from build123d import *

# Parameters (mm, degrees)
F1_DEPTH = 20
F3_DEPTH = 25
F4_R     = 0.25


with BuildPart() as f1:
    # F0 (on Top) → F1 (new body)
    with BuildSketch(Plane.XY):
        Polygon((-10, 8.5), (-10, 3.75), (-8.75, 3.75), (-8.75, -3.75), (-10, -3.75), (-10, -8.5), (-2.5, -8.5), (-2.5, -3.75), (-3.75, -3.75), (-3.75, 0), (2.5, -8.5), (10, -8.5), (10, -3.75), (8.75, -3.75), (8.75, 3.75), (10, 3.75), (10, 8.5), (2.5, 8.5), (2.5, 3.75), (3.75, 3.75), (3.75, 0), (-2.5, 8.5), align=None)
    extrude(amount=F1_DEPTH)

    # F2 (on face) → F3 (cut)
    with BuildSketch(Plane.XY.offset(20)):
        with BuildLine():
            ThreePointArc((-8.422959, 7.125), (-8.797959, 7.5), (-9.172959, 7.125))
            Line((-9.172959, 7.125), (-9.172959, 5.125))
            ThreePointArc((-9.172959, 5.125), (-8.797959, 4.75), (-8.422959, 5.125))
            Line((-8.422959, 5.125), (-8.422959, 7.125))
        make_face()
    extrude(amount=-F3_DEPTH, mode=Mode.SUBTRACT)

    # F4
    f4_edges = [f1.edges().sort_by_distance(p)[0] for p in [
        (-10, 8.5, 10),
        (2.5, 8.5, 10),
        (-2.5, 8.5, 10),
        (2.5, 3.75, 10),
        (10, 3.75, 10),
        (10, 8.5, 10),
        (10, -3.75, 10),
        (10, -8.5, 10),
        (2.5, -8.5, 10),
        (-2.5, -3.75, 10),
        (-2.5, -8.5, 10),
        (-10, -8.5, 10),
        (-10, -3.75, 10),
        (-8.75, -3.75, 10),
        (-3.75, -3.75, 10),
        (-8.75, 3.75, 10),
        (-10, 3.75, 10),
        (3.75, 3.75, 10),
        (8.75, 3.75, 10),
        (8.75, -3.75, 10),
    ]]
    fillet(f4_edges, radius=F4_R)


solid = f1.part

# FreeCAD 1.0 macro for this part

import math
import FreeCAD as App
import Part
import Sketcher

V = App.Vector


def edges_at(feature, points):
    """Names of the edges that pass closest to the given points."""
    edges = feature.Shape.Edges
    near = lambda p: min(range(len(edges)), key=lambda i: edges[i].distToShape(Part.Vertex(*p))[0])
    return sorted({f"Edge{near(p) + 1}" for p in points})

doc = App.newDocument("Part")
body = doc.addObject("PartDesign::Body", "Body")

sketch1 = body.newObject("Sketcher::SketchObject", "Sketch")
sketch1.AttachmentSupport = (doc.getObject("XY_Plane"), [""])
sketch1.MapMode = "FlatFace"
sketch1.addGeometry(Part.LineSegment(V(-10, 8.5, 0), V(-10, 3.8, 0)), False)
sketch1.addGeometry(Part.LineSegment(V(-10, 3.8, 0), V(-8.8, 3.8, 0)), False)
sketch1.addGeometry(Part.LineSegment(V(-8.8, 3.8, 0), V(-8.8, -3.8, 0)), False)
sketch1.addGeometry(Part.LineSegment(V(-8.8, -3.8, 0), V(-10, -3.8, 0)), False)
sketch1.addGeometry(Part.LineSegment(V(-10, -3.8, 0), V(-10, -8.5, 0)), False)
sketch1.addGeometry(Part.LineSegment(V(-10, -8.5, 0), V(-2.5, -8.5, 0)), False)
sketch1.addGeometry(Part.LineSegment(V(-2.5, -8.5, 0), V(-2.5, -3.8, 0)), False)
sketch1.addGeometry(Part.LineSegment(V(-2.5, -3.8, 0), V(-3.8, -3.8, 0)), False)
sketch1.addGeometry(Part.LineSegment(V(-3.8, -3.8, 0), V(-3.8, 0, 0)), False)
sketch1.addGeometry(Part.LineSegment(V(-3.8, 0, 0), V(2.5, -8.5, 0)), False)
sketch1.addGeometry(Part.LineSegment(V(2.5, -8.5, 0), V(10, -8.5, 0)), False)
sketch1.addGeometry(Part.LineSegment(V(10, -8.5, 0), V(10, -3.8, 0)), False)
sketch1.addGeometry(Part.LineSegment(V(10, -3.8, 0), V(8.8, -3.8, 0)), False)
sketch1.addGeometry(Part.LineSegment(V(8.8, -3.8, 0), V(8.8, 3.8, 0)), False)
sketch1.addGeometry(Part.LineSegment(V(8.8, 3.8, 0), V(10, 3.8, 0)), False)
sketch1.addGeometry(Part.LineSegment(V(10, 3.8, 0), V(10, 8.5, 0)), False)
sketch1.addGeometry(Part.LineSegment(V(10, 8.5, 0), V(2.5, 8.5, 0)), False)
sketch1.addGeometry(Part.LineSegment(V(2.5, 8.5, 0), V(2.5, 3.8, 0)), False)
sketch1.addGeometry(Part.LineSegment(V(2.5, 3.8, 0), V(3.8, 3.8, 0)), False)
sketch1.addGeometry(Part.LineSegment(V(3.8, 3.8, 0), V(3.8, 0, 0)), False)
sketch1.addGeometry(Part.LineSegment(V(3.8, 0, 0), V(-2.5, 8.5, 0)), False)
sketch1.addGeometry(Part.LineSegment(V(-2.5, 8.5, 0), V(-10, 8.5, 0)), False)
sketch1.addConstraint(Sketcher.Constraint("Coincident", 0, 2, 1, 1))
sketch1.addConstraint(Sketcher.Constraint("Coincident", 1, 2, 2, 1))
sketch1.addConstraint(Sketcher.Constraint("Coincident", 2, 2, 3, 1))
sketch1.addConstraint(Sketcher.Constraint("Coincident", 3, 2, 4, 1))
sketch1.addConstraint(Sketcher.Constraint("Coincident", 4, 2, 5, 1))
sketch1.addConstraint(Sketcher.Constraint("Coincident", 5, 2, 6, 1))
sketch1.addConstraint(Sketcher.Constraint("Coincident", 6, 2, 7, 1))
sketch1.addConstraint(Sketcher.Constraint("Coincident", 7, 2, 8, 1))
sketch1.addConstraint(Sketcher.Constraint("Coincident", 8, 2, 9, 1))
sketch1.addConstraint(Sketcher.Constraint("Coincident", 9, 2, 10, 1))
sketch1.addConstraint(Sketcher.Constraint("Coincident", 10, 2, 11, 1))
sketch1.addConstraint(Sketcher.Constraint("Coincident", 11, 2, 12, 1))
sketch1.addConstraint(Sketcher.Constraint("Coincident", 12, 2, 13, 1))
sketch1.addConstraint(Sketcher.Constraint("Coincident", 13, 2, 14, 1))
sketch1.addConstraint(Sketcher.Constraint("Coincident", 14, 2, 15, 1))
sketch1.addConstraint(Sketcher.Constraint("Coincident", 15, 2, 16, 1))
sketch1.addConstraint(Sketcher.Constraint("Coincident", 16, 2, 17, 1))
sketch1.addConstraint(Sketcher.Constraint("Coincident", 17, 2, 18, 1))
sketch1.addConstraint(Sketcher.Constraint("Coincident", 18, 2, 19, 1))
sketch1.addConstraint(Sketcher.Constraint("Coincident", 19, 2, 20, 1))
sketch1.addConstraint(Sketcher.Constraint("Coincident", 20, 2, 21, 1))
sketch1.addConstraint(Sketcher.Constraint("Coincident", 21, 2, 0, 1))
sketch1.addConstraint(Sketcher.Constraint("Vertical", 0))
sketch1.addConstraint(Sketcher.Constraint("Horizontal", 1))
sketch1.addConstraint(Sketcher.Constraint("Vertical", 2))
sketch1.addConstraint(Sketcher.Constraint("Horizontal", 3))
sketch1.addConstraint(Sketcher.Constraint("Vertical", 4))
sketch1.addConstraint(Sketcher.Constraint("Horizontal", 5))
sketch1.addConstraint(Sketcher.Constraint("Vertical", 6))
sketch1.addConstraint(Sketcher.Constraint("Horizontal", 7))
sketch1.addConstraint(Sketcher.Constraint("Vertical", 8))
sketch1.addConstraint(Sketcher.Constraint("Horizontal", 10))
sketch1.addConstraint(Sketcher.Constraint("Vertical", 11))
sketch1.addConstraint(Sketcher.Constraint("Horizontal", 12))
sketch1.addConstraint(Sketcher.Constraint("Vertical", 13))
sketch1.addConstraint(Sketcher.Constraint("Horizontal", 14))
sketch1.addConstraint(Sketcher.Constraint("Vertical", 15))
sketch1.addConstraint(Sketcher.Constraint("Horizontal", 16))
sketch1.addConstraint(Sketcher.Constraint("Vertical", 17))
sketch1.addConstraint(Sketcher.Constraint("Horizontal", 18))
sketch1.addConstraint(Sketcher.Constraint("Vertical", 19))
sketch1.addConstraint(Sketcher.Constraint("Horizontal", 21))
sketch1.addConstraint(Sketcher.Constraint("Symmetric", 0, 2, 11, 2, -1, 1))
sketch1.addConstraint(Sketcher.Constraint("Symmetric", 2, 2, 13, 2, -1, 1))
sketch1.addConstraint(Sketcher.Constraint("Symmetric", 4, 2, 15, 2, -1, 1))
sketch1.addConstraint(Sketcher.Constraint("Symmetric", 6, 2, 17, 2, -1, 1))
sketch1.addConstraint(Sketcher.Constraint("Symmetric", 8, 2, 19, 2, -1, 1))
sketch1.addConstraint(Sketcher.Constraint("Symmetric", 9, 2, 20, 2, -1, 1))
sketch1.addConstraint(Sketcher.Constraint("Symmetric", 5, 2, 9, 2, -2))
sketch1.addConstraint(Sketcher.Constraint("Symmetric", 3, 2, 11, 2, -2))
sketch1.addConstraint(Sketcher.Constraint("PointOnObject", 8, 2, -1))
sketch1.addConstraint(Sketcher.Constraint("Horizontal", 3, 2, 6, 2))
sketch1.addConstraint(Sketcher.Constraint("Equal", 3, 7))
sketch1.addConstraint(Sketcher.Constraint("Equal", 21, 2))
sketch1.addConstraint(Sketcher.Constraint("DistanceX", 5, 1, 5, 2, 7.5))
sketch1.addConstraint(Sketcher.Constraint("DistanceX", 0, 2, -1, 1, 10.0))
sketch1.addConstraint(Sketcher.Constraint("DistanceX", 2, 2, 7, 2, 5.0))
sketch1.addConstraint(Sketcher.Constraint("DistanceY", 0, 2, 0, 1, 4.75))
pad1 = body.newObject("PartDesign::Pad", "Pad")
pad1.Profile = sketch1
pad1.Length = 20

sketch2 = body.newObject("Sketcher::SketchObject", "Sketch001")
sketch2.AttachmentSupport = (doc.getObject("XY_Plane"), [""])
sketch2.MapMode = "FlatFace"
sketch2.AttachmentOffset = App.Placement(V(0, 0, 20), App.Rotation())
sketch2.addGeometry(Part.ArcOfCircle(Part.Circle(V(-8.8, 7.12, 0), V(0, 0, 1), 0.38), math.radians(0), math.radians(180)), False)
sketch2.addGeometry(Part.LineSegment(V(-9.17, 7.12, 0), V(-9.17, 5.12, 0)), False)
sketch2.addGeometry(Part.ArcOfCircle(Part.Circle(V(-8.8, 5.12, 0), V(0, 0, 1), 0.38), math.radians(180), math.radians(360)), False)
sketch2.addGeometry(Part.LineSegment(V(-8.42, 5.12, 0), V(-8.42, 7.12, 0)), False)
sketch2.addConstraint(Sketcher.Constraint("Tangent", 0, 2, 1, 1))
sketch2.addConstraint(Sketcher.Constraint("Tangent", 1, 2, 2, 1))
sketch2.addConstraint(Sketcher.Constraint("Tangent", 2, 2, 3, 1))
sketch2.addConstraint(Sketcher.Constraint("Tangent", 3, 2, 0, 1))
sketch2.addConstraint(Sketcher.Constraint("Vertical", 1))
sketch2.addConstraint(Sketcher.Constraint("Vertical", 3))
sketch2.addConstraint(Sketcher.Constraint("DistanceY", 1, 2, 1, 1, 2.0))
sketch2.addConstraint(Sketcher.Constraint("Radius", 0, 0.375))
sketch2.addConstraint(Sketcher.Constraint("DistanceY", -1, 1, 0, 3, 7.125))
sketch2.addConstraint(Sketcher.Constraint("DistanceX", 0, 3, -1, 1, 8.797959))
pocket1 = body.newObject("PartDesign::Pocket", "Pocket")
pocket1.Profile = sketch2
pocket1.Length = 25
doc.recompute()

fillet = body.newObject("PartDesign::Fillet", "Fillet")
fillet.Base = (pocket1, edges_at(pocket1, [
    (-10, 8.5, 10),
    (2.5, 8.5, 10),
    (-2.5, 8.5, 10),
    (2.5, 3.75, 10),
    (10, 3.75, 10),
    (10, 8.5, 10),
    (10, -3.75, 10),
    (10, -8.5, 10),
    (2.5, -8.5, 10),
    (-2.5, -3.75, 10),
    (-2.5, -8.5, 10),
    (-10, -8.5, 10),
    (-10, -3.75, 10),
    (-8.75, -3.75, 10),
    (-3.75, -3.75, 10),
    (-8.75, 3.75, 10),
    (-10, 3.75, 10),
    (3.75, 3.75, 10),
    (8.75, 3.75, 10),
    (8.75, -3.75, 10),
]))
fillet.Radius = 0.25

doc.recompute()
